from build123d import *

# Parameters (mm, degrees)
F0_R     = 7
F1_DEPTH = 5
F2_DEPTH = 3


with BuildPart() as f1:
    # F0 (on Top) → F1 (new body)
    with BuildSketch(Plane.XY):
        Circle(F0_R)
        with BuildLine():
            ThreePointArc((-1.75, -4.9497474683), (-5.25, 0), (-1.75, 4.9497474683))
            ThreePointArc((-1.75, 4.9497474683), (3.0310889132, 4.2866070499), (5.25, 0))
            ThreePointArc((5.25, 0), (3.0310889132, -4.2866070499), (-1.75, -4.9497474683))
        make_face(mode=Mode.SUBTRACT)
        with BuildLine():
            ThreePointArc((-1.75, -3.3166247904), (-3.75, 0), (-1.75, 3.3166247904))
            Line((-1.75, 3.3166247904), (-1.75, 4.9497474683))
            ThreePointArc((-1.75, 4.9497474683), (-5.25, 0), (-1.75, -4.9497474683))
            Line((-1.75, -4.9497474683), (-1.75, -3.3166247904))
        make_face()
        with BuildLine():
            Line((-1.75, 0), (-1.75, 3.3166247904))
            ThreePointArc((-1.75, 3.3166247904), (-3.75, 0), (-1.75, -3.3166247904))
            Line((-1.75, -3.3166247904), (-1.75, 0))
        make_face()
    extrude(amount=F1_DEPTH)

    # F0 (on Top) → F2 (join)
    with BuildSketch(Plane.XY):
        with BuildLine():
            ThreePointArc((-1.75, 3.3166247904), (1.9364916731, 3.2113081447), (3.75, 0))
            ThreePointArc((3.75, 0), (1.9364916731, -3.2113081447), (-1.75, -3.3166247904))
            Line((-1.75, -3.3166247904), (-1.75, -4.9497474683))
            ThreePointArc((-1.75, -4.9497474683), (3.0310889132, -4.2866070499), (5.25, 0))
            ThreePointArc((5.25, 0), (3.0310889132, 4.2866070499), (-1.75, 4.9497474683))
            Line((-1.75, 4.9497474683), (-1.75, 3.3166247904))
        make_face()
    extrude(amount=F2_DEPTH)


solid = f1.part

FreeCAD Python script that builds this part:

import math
import FreeCAD as App
import Part
import Sketcher

doc = App.newDocument("Part")
params = doc.addObject("Spreadsheet::Sheet", "Params")
for row, (alias, value) in enumerate([
    ("sketch1_diameter", "14 mm"),
    ("sketch1_radius", "5.25 mm"),
    ("pad1_length", "5 mm"),
    ("sketch2_radius", "3.75 mm"),
    ("sketch2_radius2", "5.25 mm"),
    ("pad2_length", "3 mm"),
], start=1):
    params.set(f"A{row}", alias)
    params.set(f"B{row}", "=" + value)
    params.setAlias(f"B{row}", alias)

body = doc.addObject("PartDesign::Body", "Body")

# Sketch on XY plane
sketch1 = body.newObject("Sketcher::SketchObject", "Sketch")
sketch1.AttachmentSupport = (doc.getObject("XY_Plane"), [""])
sketch1.MapMode = "FlatFace"
sketch1.addGeometry([
    Part.Circle(App.Vector(0, 0, 0), App.Vector(0, 0, 1), 7),
    Part.ArcOfCircle(Part.Circle(App.Vector(0, 0, 0), App.Vector(0, 0, 1), 5), math.radians(-109), math.radians(109)),
    Part.LineSegment(App.Vector(-2, -5, 0), App.Vector(-2, 5, 0)),
], False)
sketch1.addConstraint([
    Sketcher.Constraint("Coincident", 1, 1, 2, 1),
    Sketcher.Constraint("Coincident", 2, 2, 1, 2),
    Sketcher.Constraint("Vertical", 2),
    Sketcher.Constraint("Coincident", 0, 3, -1, 1),
    Sketcher.Constraint("Coincident", 1, 3, -1, 1),
    Sketcher.Constraint("Diameter", 0, 14.0),
    Sketcher.Constraint("Radius", 1, 5.25),
    Sketcher.Constraint("DistanceX", 1, 1, -1, 1, 1.75),
])
sketch1.setExpression("Constraints[5]", "Params.sketch1_diameter")
sketch1.setExpression("Constraints[6]", "Params.sketch1_radius")
pad1 = body.newObject("PartDesign::Pad", "Pad")
pad1.Profile = sketch1
pad1.setExpression("Length", "Params.pad1_length")

# Sketch on XY plane
sketch2 = body.newObject("Sketcher::SketchObject", "Sketch001")
sketch2.AttachmentSupport = (doc.getObject("XY_Plane"), [""])
sketch2.MapMode = "FlatFace"
sketch2.addGeometry([
    Part.ArcOfCircle(Part.Circle(App.Vector(0, 0, 0), App.Vector(0, 0, 1), 3.8), math.radians(0), math.radians(118)),  # 0
    Part.ArcOfCircle(Part.Circle(App.Vector(0, 0, 0), App.Vector(0, 0, 1), 3.8), math.radians(-118), math.radians(0)),  # 1
    Part.LineSegment(App.Vector(-1.8, -3.3, 0), App.Vector(-1.8, -4.9, 0)),  # 2
    Part.ArcOfCircle(Part.Circle(App.Vector(0, 0, 0), App.Vector(0, 0, 1), 5.2), math.radians(-109), math.radians(109)),  # 3
    Part.LineSegment(App.Vector(-1.8, 4.9, 0), App.Vector(-1.8, 3.3, 0)),  # 4
], False)
sketch2.addConstraint([
    Sketcher.Constraint("Tangent", 0, 1, 1, 2),
    Sketcher.Constraint("Coincident", 1, 1, 2, 1),
    Sketcher.Constraint("Coincident", 2, 2, 3, 1),
    Sketcher.Constraint("Coincident", 3, 2, 4, 1),
    Sketcher.Constraint("Coincident", 4, 2, 0, 2),
    Sketcher.Constraint("Vertical", 2),
    Sketcher.Constraint("Vertical", 4),
    Sketcher.Constraint("Coincident", 0, 3, -1, 1),
    Sketcher.Constraint("Coincident", 3, 3, -1, 1),
    Sketcher.Constraint("Equal", 0, 1),
    Sketcher.Constraint("PointOnObject", 0, 1, -1),
    Sketcher.Constraint("Vertical", 2, 2, 3, 2),
    Sketcher.Constraint("Radius", 0, 3.75),
    Sketcher.Constraint("Radius", 3, 5.25),
    Sketcher.Constraint("DistanceX", 1, 1, 0, 1, 5.5),
])
sketch2.setExpression("Constraints[12]", "Params.sketch2_radius")
sketch2.setExpression("Constraints[13]", "Params.sketch2_radius2")
pad2 = body.newObject("PartDesign::Pad", "Pad001")
pad2.Profile = sketch2
pad2.setExpression("Length", "Params.pad2_length")

doc.recompute()
